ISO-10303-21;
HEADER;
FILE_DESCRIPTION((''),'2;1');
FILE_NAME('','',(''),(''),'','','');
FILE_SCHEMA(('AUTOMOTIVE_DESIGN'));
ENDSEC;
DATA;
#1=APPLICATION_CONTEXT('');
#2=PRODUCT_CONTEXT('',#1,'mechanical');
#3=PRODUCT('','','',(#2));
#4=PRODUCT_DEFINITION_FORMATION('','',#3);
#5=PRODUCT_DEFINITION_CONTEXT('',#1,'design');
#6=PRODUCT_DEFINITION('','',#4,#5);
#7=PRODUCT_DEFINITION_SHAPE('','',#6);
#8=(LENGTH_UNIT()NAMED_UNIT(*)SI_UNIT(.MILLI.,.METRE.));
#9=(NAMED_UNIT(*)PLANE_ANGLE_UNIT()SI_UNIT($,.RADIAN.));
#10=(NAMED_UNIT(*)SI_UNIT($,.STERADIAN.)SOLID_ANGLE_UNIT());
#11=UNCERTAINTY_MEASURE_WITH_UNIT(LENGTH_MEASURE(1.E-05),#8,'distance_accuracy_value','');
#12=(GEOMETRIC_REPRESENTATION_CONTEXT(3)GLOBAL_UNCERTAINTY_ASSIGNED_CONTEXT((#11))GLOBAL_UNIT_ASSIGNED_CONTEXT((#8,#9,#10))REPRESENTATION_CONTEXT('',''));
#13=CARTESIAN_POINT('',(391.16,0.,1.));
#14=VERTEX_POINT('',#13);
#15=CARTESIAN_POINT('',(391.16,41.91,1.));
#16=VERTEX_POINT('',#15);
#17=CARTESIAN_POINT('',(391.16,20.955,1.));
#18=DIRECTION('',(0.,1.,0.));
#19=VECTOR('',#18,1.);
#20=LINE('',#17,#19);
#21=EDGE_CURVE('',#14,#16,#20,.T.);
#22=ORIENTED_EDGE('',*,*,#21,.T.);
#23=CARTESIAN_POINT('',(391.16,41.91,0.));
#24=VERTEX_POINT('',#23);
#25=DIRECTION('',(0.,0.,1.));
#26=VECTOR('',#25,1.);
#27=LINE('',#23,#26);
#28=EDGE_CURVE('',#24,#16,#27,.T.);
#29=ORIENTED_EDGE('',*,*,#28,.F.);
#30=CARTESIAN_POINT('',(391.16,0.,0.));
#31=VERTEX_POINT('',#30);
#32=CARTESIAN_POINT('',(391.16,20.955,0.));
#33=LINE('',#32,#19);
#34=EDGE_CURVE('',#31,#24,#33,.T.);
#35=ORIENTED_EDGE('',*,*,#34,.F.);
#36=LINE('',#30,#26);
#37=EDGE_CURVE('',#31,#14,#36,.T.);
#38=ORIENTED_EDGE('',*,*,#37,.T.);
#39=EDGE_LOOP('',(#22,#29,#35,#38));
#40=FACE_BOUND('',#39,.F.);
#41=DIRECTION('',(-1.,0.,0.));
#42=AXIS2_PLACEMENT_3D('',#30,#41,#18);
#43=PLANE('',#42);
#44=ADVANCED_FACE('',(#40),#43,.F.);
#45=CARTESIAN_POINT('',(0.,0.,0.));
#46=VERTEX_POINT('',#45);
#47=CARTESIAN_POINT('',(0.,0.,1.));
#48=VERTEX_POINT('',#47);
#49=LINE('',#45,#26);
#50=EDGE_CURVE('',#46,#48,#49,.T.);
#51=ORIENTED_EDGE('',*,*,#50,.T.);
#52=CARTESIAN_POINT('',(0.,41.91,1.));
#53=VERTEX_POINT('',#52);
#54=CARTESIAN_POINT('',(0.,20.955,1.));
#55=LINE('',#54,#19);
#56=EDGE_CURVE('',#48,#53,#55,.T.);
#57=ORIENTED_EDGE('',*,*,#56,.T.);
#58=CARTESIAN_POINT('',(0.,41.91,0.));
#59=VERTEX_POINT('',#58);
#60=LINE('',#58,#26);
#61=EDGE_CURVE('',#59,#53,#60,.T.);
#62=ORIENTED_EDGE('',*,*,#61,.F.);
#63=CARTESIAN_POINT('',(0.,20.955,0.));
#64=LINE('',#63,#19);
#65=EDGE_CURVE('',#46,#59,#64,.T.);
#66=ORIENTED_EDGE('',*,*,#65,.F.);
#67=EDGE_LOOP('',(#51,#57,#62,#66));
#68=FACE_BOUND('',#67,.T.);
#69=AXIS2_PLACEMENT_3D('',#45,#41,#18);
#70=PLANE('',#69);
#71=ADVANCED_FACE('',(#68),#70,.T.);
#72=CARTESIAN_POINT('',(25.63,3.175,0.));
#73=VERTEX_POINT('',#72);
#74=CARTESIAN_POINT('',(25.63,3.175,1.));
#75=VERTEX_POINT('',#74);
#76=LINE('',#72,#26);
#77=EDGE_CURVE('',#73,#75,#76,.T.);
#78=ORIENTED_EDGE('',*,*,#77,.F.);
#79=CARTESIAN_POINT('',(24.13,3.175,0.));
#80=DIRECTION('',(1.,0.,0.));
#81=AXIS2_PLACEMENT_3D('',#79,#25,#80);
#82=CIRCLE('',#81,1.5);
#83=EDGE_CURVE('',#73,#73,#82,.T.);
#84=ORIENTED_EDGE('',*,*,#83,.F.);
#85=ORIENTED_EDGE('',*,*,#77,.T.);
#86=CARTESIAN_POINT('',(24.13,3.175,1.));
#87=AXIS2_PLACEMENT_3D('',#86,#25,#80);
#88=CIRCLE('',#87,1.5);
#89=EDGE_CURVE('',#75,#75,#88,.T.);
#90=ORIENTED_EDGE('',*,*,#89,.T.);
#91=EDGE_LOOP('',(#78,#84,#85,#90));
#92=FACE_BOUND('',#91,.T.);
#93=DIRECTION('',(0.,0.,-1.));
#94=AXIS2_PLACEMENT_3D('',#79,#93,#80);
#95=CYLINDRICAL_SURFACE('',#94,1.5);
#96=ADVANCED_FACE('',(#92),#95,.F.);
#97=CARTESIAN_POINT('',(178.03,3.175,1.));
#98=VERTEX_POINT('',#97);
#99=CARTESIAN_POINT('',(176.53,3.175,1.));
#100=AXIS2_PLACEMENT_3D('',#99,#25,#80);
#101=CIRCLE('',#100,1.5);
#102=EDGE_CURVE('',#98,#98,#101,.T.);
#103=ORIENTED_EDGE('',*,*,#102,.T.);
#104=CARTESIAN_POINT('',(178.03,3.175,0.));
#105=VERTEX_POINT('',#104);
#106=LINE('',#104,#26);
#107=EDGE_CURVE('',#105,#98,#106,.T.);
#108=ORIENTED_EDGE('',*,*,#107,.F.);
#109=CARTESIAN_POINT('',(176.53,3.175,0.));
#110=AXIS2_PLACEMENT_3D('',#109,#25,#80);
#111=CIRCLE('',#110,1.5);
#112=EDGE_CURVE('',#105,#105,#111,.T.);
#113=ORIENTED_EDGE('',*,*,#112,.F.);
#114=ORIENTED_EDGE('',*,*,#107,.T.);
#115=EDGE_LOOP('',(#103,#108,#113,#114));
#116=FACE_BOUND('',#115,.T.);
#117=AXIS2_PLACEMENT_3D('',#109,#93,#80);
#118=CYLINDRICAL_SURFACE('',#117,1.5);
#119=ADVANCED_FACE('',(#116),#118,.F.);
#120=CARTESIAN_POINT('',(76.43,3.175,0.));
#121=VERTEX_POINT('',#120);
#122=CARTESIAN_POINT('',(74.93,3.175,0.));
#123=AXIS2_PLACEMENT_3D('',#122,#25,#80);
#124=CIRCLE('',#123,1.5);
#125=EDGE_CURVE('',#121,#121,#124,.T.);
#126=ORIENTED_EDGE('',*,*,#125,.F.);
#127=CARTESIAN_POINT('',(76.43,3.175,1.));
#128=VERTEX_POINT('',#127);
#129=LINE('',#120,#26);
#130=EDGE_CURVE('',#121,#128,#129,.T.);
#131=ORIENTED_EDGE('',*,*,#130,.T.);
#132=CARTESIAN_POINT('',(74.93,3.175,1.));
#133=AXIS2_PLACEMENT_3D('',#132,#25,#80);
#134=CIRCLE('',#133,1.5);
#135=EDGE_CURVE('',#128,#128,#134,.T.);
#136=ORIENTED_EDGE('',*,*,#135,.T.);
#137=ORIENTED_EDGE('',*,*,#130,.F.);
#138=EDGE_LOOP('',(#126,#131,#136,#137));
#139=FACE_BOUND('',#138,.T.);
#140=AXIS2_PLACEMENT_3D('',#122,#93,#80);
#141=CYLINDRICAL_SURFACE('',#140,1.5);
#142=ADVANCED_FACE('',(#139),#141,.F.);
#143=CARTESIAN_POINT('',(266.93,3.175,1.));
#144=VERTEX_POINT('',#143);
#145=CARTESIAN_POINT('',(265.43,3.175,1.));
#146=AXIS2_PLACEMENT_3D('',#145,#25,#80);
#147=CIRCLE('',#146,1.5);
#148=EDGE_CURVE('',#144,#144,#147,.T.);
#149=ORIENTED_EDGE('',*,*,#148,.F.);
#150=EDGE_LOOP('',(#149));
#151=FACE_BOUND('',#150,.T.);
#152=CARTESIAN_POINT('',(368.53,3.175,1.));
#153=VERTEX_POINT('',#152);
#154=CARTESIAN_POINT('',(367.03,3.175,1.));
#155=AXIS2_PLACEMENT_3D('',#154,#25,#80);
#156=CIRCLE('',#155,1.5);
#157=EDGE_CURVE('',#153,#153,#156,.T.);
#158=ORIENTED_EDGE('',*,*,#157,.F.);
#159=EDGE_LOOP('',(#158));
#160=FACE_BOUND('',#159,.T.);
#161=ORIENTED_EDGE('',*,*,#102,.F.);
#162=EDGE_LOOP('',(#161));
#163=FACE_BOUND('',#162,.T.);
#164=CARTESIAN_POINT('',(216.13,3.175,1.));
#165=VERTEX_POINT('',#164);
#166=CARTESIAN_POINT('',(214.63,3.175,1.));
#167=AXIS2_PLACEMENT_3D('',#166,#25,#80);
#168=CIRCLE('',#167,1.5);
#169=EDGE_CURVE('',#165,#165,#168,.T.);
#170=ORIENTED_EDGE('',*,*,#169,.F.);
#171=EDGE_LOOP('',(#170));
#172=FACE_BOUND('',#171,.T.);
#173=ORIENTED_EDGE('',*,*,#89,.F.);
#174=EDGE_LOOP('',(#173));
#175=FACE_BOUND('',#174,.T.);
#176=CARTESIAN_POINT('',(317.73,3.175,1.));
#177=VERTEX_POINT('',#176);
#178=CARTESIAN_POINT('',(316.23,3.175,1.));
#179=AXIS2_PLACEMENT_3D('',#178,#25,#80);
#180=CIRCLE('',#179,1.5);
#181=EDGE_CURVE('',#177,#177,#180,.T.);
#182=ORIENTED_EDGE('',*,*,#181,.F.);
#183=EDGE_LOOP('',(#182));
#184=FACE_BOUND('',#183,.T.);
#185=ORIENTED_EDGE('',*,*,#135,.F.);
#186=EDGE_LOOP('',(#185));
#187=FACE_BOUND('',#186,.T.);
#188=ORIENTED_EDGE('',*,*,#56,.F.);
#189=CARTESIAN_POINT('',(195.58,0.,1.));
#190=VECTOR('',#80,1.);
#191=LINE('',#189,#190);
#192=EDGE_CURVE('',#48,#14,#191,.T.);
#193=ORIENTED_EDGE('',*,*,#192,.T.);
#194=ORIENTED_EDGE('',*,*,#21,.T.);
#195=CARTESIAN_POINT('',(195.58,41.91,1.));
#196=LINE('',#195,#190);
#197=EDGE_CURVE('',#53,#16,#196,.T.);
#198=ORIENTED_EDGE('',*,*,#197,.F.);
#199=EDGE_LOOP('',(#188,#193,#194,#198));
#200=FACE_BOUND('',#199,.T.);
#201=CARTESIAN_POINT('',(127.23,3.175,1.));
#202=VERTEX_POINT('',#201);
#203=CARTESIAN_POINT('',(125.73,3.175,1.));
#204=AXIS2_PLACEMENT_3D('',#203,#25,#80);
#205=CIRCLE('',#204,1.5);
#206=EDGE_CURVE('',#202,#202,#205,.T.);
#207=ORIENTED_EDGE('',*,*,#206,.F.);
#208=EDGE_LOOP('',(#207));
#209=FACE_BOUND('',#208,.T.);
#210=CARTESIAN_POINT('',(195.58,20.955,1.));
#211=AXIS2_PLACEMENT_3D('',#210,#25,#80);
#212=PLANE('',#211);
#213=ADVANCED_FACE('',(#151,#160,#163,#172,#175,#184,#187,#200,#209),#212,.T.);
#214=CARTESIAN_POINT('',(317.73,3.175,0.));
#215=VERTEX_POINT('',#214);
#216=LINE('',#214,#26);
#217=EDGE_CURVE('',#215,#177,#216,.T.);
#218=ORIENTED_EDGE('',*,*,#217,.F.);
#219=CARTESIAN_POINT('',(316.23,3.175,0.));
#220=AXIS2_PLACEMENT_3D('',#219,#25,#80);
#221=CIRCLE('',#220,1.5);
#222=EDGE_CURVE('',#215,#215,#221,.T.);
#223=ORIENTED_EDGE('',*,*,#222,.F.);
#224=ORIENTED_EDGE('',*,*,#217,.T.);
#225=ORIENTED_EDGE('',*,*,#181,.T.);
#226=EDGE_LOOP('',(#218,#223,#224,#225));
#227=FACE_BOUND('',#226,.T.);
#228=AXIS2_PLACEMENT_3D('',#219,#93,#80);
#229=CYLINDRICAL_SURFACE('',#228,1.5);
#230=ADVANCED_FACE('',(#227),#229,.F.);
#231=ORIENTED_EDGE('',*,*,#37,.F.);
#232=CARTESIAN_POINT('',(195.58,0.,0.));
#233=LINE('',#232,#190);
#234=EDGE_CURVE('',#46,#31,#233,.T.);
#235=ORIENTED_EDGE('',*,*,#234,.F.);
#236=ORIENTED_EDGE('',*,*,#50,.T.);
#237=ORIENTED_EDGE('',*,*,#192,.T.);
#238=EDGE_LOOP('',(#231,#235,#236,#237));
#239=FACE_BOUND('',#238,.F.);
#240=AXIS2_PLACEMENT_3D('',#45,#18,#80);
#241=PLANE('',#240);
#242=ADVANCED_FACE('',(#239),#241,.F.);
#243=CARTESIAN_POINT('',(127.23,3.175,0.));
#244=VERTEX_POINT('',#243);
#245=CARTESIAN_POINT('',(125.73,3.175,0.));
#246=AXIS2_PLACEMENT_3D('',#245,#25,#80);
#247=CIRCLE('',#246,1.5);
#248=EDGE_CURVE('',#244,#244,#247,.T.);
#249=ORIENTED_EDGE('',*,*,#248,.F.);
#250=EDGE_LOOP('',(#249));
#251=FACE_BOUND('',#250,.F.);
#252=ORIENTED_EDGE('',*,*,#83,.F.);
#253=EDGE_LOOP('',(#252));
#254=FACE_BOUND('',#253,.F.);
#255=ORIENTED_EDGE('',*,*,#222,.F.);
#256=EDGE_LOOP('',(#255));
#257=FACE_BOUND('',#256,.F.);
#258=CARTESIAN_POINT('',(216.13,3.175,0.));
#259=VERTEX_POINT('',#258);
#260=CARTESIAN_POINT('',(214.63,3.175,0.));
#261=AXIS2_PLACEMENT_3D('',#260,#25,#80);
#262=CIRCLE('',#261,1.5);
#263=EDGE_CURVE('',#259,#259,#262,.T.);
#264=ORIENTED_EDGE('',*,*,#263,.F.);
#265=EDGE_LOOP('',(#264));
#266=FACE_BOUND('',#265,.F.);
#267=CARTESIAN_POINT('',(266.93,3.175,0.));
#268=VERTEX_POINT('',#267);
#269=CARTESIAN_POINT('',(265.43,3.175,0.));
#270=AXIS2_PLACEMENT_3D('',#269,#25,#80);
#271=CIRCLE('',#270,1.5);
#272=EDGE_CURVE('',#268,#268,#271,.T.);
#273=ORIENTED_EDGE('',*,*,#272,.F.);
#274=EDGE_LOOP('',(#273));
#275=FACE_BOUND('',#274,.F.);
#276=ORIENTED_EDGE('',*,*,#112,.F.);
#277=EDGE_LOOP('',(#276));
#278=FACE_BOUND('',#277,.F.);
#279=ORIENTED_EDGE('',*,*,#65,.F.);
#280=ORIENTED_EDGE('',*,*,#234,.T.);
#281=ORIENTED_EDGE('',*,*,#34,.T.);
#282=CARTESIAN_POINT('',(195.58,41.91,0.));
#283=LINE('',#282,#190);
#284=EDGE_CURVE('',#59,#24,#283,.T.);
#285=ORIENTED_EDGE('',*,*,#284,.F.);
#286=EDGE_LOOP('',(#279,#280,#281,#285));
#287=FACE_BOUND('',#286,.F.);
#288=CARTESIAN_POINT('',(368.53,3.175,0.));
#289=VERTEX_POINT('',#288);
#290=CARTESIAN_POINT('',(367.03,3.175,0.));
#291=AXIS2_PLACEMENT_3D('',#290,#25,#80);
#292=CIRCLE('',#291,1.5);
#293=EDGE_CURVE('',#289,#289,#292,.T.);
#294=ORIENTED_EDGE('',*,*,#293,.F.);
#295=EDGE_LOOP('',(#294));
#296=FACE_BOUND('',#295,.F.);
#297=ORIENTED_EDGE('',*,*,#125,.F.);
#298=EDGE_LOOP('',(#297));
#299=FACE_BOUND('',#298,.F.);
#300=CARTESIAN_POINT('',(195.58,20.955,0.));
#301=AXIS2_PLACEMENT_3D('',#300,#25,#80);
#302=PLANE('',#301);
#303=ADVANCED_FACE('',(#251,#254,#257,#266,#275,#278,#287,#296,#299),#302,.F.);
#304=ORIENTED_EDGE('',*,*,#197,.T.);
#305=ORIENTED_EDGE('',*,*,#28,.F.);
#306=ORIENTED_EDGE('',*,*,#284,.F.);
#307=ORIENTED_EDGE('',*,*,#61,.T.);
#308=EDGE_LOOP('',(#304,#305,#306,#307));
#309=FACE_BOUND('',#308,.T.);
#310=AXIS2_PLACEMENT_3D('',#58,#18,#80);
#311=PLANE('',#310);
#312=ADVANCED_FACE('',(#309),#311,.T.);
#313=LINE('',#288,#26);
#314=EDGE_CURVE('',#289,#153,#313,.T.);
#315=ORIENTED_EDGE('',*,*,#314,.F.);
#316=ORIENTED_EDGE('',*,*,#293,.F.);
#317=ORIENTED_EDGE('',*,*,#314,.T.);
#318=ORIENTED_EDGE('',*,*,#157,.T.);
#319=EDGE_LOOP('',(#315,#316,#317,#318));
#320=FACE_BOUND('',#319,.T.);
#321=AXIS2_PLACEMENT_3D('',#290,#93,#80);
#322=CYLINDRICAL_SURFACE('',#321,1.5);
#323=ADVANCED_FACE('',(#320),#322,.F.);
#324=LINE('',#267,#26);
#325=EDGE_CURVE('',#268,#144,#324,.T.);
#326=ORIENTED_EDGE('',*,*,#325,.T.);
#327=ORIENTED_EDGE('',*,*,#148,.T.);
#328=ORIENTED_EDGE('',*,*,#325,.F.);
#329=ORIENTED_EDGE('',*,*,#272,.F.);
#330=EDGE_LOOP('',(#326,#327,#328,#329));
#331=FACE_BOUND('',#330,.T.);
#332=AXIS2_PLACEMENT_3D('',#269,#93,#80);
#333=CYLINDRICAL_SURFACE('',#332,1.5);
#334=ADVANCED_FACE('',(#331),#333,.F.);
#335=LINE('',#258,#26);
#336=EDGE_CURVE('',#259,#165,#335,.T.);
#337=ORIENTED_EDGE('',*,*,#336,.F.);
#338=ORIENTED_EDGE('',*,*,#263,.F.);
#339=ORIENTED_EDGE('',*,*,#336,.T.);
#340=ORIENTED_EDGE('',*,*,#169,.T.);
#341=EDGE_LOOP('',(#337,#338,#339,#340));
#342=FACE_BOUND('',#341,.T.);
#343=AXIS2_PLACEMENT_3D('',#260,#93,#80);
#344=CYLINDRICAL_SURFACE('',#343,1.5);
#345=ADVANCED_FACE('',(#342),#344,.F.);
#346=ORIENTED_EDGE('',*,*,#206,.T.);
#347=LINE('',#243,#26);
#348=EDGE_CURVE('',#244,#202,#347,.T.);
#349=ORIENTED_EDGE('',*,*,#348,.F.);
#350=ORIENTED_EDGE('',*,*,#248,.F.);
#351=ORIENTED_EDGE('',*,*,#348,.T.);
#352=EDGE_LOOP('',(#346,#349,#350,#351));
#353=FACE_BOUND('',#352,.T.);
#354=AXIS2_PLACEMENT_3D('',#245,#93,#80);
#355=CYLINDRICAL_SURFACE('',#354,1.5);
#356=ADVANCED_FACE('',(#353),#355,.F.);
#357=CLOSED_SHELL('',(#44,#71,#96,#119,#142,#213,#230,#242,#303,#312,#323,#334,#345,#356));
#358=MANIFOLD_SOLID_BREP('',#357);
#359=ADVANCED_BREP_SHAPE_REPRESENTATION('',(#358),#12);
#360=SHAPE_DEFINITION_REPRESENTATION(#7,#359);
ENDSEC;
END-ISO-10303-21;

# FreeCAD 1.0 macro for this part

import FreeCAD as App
import Part
import Sketcher
Q = App.Units.Quantity


def add_polygon(sketch, points):
    """Adds a closed chain of lines whose ends are joined by coincident constraints."""
    first, n = sketch.GeometryCount, len(points)
    for a, b in zip(points, points[1:] + points[:1]):
        sketch.addGeometry(Part.LineSegment(App.Vector(*a, 0), App.Vector(*b, 0)), False)
    for i in range(n):
        sketch.addConstraint(Sketcher.Constraint("Coincident", first + i, 2, first + (i + 1) % n, 1))

doc = App.newDocument("Part")
body = doc.addObject("PartDesign::Body", "Body")

# Sketch on XY plane
sketch1 = doc.addObject("Sketcher::SketchObject", "Sketch")
body.addObject(sketch1)
sketch1.AttachmentSupport = (doc.XY_Plane, [""])
sketch1.MapMode = "FlatFace"
add_polygon(sketch1, [(0, 41.91), (0, 0), (391.16, 0), (391.16, 41.91)])  # lines 0-3
sketch1.addGeometry(Part.Circle(App.Vector(24.13, 3.175, 0), App.Vector(0, 0, 1), 1.5), False)  # 4
sketch1.addGeometry(Part.Circle(App.Vector(74.93, 3.175, 0), App.Vector(0, 0, 1), 1.5), False)  # 5
sketch1.addGeometry(Part.Circle(App.Vector(125.73, 3.175, 0), App.Vector(0, 0, 1), 1.5), False)  # 6
sketch1.addGeometry(Part.Circle(App.Vector(176.53, 3.175, 0), App.Vector(0, 0, 1), 1.5), False)  # 7
sketch1.addGeometry(Part.Circle(App.Vector(214.63, 3.175, 0), App.Vector(0, 0, 1), 1.5), False)  # 8
sketch1.addGeometry(Part.Circle(App.Vector(265.43, 3.175, 0), App.Vector(0, 0, 1), 1.5), False)  # 9
sketch1.addGeometry(Part.Circle(App.Vector(316.23, 3.175, 0), App.Vector(0, 0, 1), 1.5), False)  # 10
sketch1.addGeometry(Part.Circle(App.Vector(367.03, 3.175, 0), App.Vector(0, 0, 1), 1.5), False)  # 11
sketch1.addConstraint([
    Sketcher.Constraint("Vertical", 0),
    Sketcher.Constraint("Horizontal", 1),
    Sketcher.Constraint("Vertical", 2),
    Sketcher.Constraint("Horizontal", 3),
    Sketcher.Constraint("Coincident", 0, 2, -1, 1),
    Sketcher.Constraint("Equal", 4, 5),
    Sketcher.Constraint("Equal", 5, 6),
    Sketcher.Constraint("Equal", 6, 7),
    Sketcher.Constraint("Equal", 7, 8),
    Sketcher.Constraint("Equal", 8, 9),
    Sketcher.Constraint("Equal", 9, 10),
    Sketcher.Constraint("Equal", 10, 11),
    Sketcher.Constraint("Horizontal", 4, 3, 5, 3),
    Sketcher.Constraint("Horizontal", 5, 3, 6, 3),
    Sketcher.Constraint("Horizontal", 6, 3, 7, 3),
    Sketcher.Constraint("Horizontal", 7, 3, 8, 3),
    Sketcher.Constraint("Horizontal", 8, 3, 9, 3),
    Sketcher.Constraint("Horizontal", 9, 3, 10, 3),
    Sketcher.Constraint("Horizontal", 10, 3, 11, 3),
    Sketcher.Constraint("Diameter", 4, Q("3 mm")),
    Sketcher.Constraint("DistanceX", 1, 1, 1, 2, Q("391.16 mm")),
    Sketcher.Constraint("DistanceY", 0, 2, 0, 1, Q("41.91 mm")),
    Sketcher.Constraint("DistanceX", 4, 3, 5, 3, Q("50.8 mm")),
    Sketcher.Constraint("DistanceX", 5, 3, 6, 3, Q("50.8 mm")),
    Sketcher.Constraint("DistanceX", 6, 3, 7, 3, Q("50.8 mm")),
    Sketcher.Constraint("DistanceX", 7, 3, 8, 3, Q("38.1 mm")),
    Sketcher.Constraint("DistanceX", 8, 3, 9, 3, Q("50.8 mm")),
    Sketcher.Constraint("DistanceX", 9, 3, 10, 3, Q("50.8 mm")),
    Sketcher.Constraint("DistanceX", 10, 3, 11, 3, Q("50.8 mm")),
    Sketcher.Constraint("DistanceX", -1, 1, 4, 3, Q("24.13 mm")),
    Sketcher.Constraint("DistanceY", -1, 1, 4, 3, Q("3.175 mm")),
])
pad1 = doc.addObject("PartDesign::Pad", "Pad")
body.addObject(pad1)
pad1.Profile = sketch1
pad1.Length = 1

doc.recompute()
